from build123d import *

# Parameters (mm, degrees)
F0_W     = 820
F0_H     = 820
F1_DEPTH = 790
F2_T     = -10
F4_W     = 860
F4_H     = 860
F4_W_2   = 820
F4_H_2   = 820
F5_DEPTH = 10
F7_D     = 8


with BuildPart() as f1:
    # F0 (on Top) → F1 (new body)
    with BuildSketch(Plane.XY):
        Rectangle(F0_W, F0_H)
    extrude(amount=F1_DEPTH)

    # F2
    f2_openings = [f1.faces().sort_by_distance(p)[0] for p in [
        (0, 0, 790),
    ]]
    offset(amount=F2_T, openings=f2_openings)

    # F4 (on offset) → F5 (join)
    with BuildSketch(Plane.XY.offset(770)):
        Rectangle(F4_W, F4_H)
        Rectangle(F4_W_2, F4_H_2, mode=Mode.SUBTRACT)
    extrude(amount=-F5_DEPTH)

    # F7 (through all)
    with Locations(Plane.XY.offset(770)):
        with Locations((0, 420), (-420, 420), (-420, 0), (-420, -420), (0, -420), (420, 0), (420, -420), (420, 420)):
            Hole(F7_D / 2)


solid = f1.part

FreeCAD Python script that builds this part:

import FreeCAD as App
import Part
import Sketcher
from FreeCAD import Vector
Q = App.Units.Quantity


def faces_at(feature, points):
    """Names of the faces that lie closest to the given points."""
    faces = feature.Shape.Faces
    near = lambda p: min(range(len(faces)), key=lambda i: faces[i].distToShape(Part.Vertex(*p))[0])
    return sorted({f"Face{near(p) + 1}" for p in points})

doc = App.newDocument("Part")
body = doc.addObject("PartDesign::Body", "Body")

sketch1 = body.newObject("Sketcher::SketchObject", "Sketch")
sketch1.AttachmentSupport = (doc.getObject("XY_Plane"), [""])
sketch1.MapMode = "FlatFace"
sketch1.addGeometry(Part.LineSegment(Vector(-410, 410, 0), Vector(-410, -410, 0)), False)
sketch1.addGeometry(Part.LineSegment(Vector(-410, -410, 0), Vector(410, -410, 0)), False)
sketch1.addGeometry(Part.LineSegment(Vector(410, -410, 0), Vector(410, 410, 0)), False)
sketch1.addGeometry(Part.LineSegment(Vector(410, 410, 0), Vector(-410, 410, 0)), False)
sketch1.addConstraint(Sketcher.Constraint("Coincident", 0, 2, 1, 1))
sketch1.addConstraint(Sketcher.Constraint("Coincident", 1, 2, 2, 1))
sketch1.addConstraint(Sketcher.Constraint("Coincident", 2, 2, 3, 1))
sketch1.addConstraint(Sketcher.Constraint("Coincident", 3, 2, 0, 1))
sketch1.addConstraint(Sketcher.Constraint("Vertical", 0))
sketch1.addConstraint(Sketcher.Constraint("Horizontal", 1))
sketch1.addConstraint(Sketcher.Constraint("Vertical", 2))
sketch1.addConstraint(Sketcher.Constraint("Horizontal", 3))
sketch1.addConstraint(Sketcher.Constraint("Symmetric", 0, 2, 2, 2, -1, 1))
sketch1.addConstraint(Sketcher.Constraint("Equal", 3, 0))
sketch1.addConstraint(Sketcher.Constraint("DistanceX", 1, 1, 1, 2, Q("820 mm")))
pad1 = body.newObject("PartDesign::Pad", "Pad")
pad1.Profile = sketch1
pad1.Length = 790
doc.recompute()

thickness = body.newObject("PartDesign::Thickness", "Thickness")
thickness.Base = (pad1, faces_at(pad1, [(0, 0, 790)]))
thickness.Value = 10
thickness.Reversed = True
thickness.Join = "Arc"

sketch2 = body.newObject("Sketcher::SketchObject", "Sketch001")
sketch2.AttachmentSupport = (doc.getObject("XY_Plane"), [""])
sketch2.MapMode = "FlatFace"
sketch2.AttachmentOffset = App.Placement(Vector(0, 0, 770), App.Rotation())
sketch2.addGeometry(Part.LineSegment(Vector(-430, 430, 0), Vector(-430, -430, 0)), False)
sketch2.addGeometry(Part.LineSegment(Vector(-430, -430, 0), Vector(430, -430, 0)), False)
sketch2.addGeometry(Part.LineSegment(Vector(430, -430, 0), Vector(430, 430, 0)), False)
sketch2.addGeometry(Part.LineSegment(Vector(430, 430, 0), Vector(-430, 430, 0)), False)
sketch2.addGeometry(Part.LineSegment(Vector(410, -410, 0), Vector(-410, -410, 0)), False)
sketch2.addGeometry(Part.LineSegment(Vector(-410, -410, 0), Vector(-410, 410, 0)), False)
sketch2.addGeometry(Part.LineSegment(Vector(-410, 410, 0), Vector(410, 410, 0)), False)
sketch2.addGeometry(Part.LineSegment(Vector(410, 410, 0), Vector(410, -410, 0)), False)
sketch2.addConstraint(Sketcher.Constraint("Coincident", 0, 2, 1, 1))
sketch2.addConstraint(Sketcher.Constraint("Coincident", 1, 2, 2, 1))
sketch2.addConstraint(Sketcher.Constraint("Coincident", 2, 2, 3, 1))
sketch2.addConstraint(Sketcher.Constraint("Coincident", 3, 2, 0, 1))
sketch2.addConstraint(Sketcher.Constraint("Coincident", 4, 2, 5, 1))
sketch2.addConstraint(Sketcher.Constraint("Coincident", 5, 2, 6, 1))
sketch2.addConstraint(Sketcher.Constraint("Coincident", 6, 2, 7, 1))
sketch2.addConstraint(Sketcher.Constraint("Coincident", 7, 2, 4, 1))
sketch2.addConstraint(Sketcher.Constraint("Vertical", 0))
sketch2.addConstraint(Sketcher.Constraint("Horizontal", 1))
sketch2.addConstraint(Sketcher.Constraint("Vertical", 2))
sketch2.addConstraint(Sketcher.Constraint("Horizontal", 3))
sketch2.addConstraint(Sketcher.Constraint("Horizontal", 4))
sketch2.addConstraint(Sketcher.Constraint("Vertical", 5))
sketch2.addConstraint(Sketcher.Constraint("Horizontal", 6))
sketch2.addConstraint(Sketcher.Constraint("Vertical", 7))
sketch2.addConstraint(Sketcher.Constraint("Symmetric", 0, 2, 2, 2, -1, 1))
sketch2.addConstraint(Sketcher.Constraint("Symmetric", 4, 2, 6, 2, -1, 1))
sketch2.addConstraint(Sketcher.Constraint("Equal", 3, 0))
sketch2.addConstraint(Sketcher.Constraint("Equal", 6, 5))
sketch2.addConstraint(Sketcher.Constraint("DistanceX", 1, 1, 1, 2, Q("860 mm")))
sketch2.addConstraint(Sketcher.Constraint("DistanceX", 4, 2, 4, 1, Q("820 mm")))
pad2 = body.newObject("PartDesign::Pad", "Pad001")
pad2.Profile = sketch2
pad2.Length = 10
pad2.Reversed = True

sketch3 = body.newObject("Sketcher::SketchObject", "Sketch002")
sketch3.AttachmentSupport = (doc.getObject("XY_Plane"), [""])
sketch3.MapMode = "FlatFace"
sketch3.AttachmentOffset = App.Placement(Vector(0, 0, 770), App.Rotation())
sketch3.addGeometry(Part.Circle(Vector(0, 420, 0), Vector(0, 0, 1), 4), False)
sketch3.addGeometry(Part.Circle(Vector(-420, 420, 0), Vector(0, 0, 1), 4), False)
sketch3.addGeometry(Part.Circle(Vector(-420, 0, 0), Vector(0, 0, 1), 4), False)
sketch3.addGeometry(Part.Circle(Vector(-420, -420, 0), Vector(0, 0, 1), 4), False)
sketch3.addGeometry(Part.Circle(Vector(0, -420, 0), Vector(0, 0, 1), 4), False)
sketch3.addGeometry(Part.Circle(Vector(420, 0, 0), Vector(0, 0, 1), 4), False)
sketch3.addGeometry(Part.Circle(Vector(420, -420, 0), Vector(0, 0, 1), 4), False)
sketch3.addGeometry(Part.Circle(Vector(420, 420, 0), Vector(0, 0, 1), 4), False)
sketch3.addConstraint(Sketcher.Constraint("Equal", 0, 1))
sketch3.addConstraint(Sketcher.Constraint("Equal", 1, 2))
sketch3.addConstraint(Sketcher.Constraint("Equal", 2, 3))
sketch3.addConstraint(Sketcher.Constraint("Equal", 3, 4))
sketch3.addConstraint(Sketcher.Constraint("Equal", 4, 5))
sketch3.addConstraint(Sketcher.Constraint("Equal", 5, 6))
sketch3.addConstraint(Sketcher.Constraint("Equal", 6, 7))
sketch3.addConstraint(Sketcher.Constraint("Symmetric", 0, 3, 4, 3, -1, 1))
sketch3.addConstraint(Sketcher.Constraint("Symmetric", 2, 3, 5, 3, -1, 1))
sketch3.addConstraint(Sketcher.Constraint("Symmetric", 1, 3, 6, 3, -1, 1))
sketch3.addConstraint(Sketcher.Constraint("Symmetric", 3, 3, 7, 3, -1, 1))
sketch3.addConstraint(Sketcher.Constraint("Symmetric", 3, 3, 6, 3, -2))
sketch3.addConstraint(Sketcher.Constraint("PointOnObject", 0, 3, -2))
sketch3.addConstraint(Sketcher.Constraint("PointOnObject", 2, 3, -1))
sketch3.addConstraint(Sketcher.Constraint("Horizontal", 0, 3, 1, 3))
sketch3.addConstraint(Sketcher.Constraint("Vertical", 1, 3, 2, 3))
sketch3.addConstraint(Sketcher.Constraint("Diameter", 0, Q("8 mm")))
sketch3.addConstraint(Sketcher.Constraint("DistanceY", -1, 1, 0, 3, Q("420 mm")))
sketch3.addConstraint(Sketcher.Constraint("DistanceX", 1, 3, -1, 1, Q("420 mm")))
doc.recompute()
hole = body.newObject("PartDesign::Hole", "Hole")
hole.Profile = sketch3
hole.ThreadType = "None"
hole.Diameter = 8
hole.DepthType = "ThroughAll"

doc.recompute()
